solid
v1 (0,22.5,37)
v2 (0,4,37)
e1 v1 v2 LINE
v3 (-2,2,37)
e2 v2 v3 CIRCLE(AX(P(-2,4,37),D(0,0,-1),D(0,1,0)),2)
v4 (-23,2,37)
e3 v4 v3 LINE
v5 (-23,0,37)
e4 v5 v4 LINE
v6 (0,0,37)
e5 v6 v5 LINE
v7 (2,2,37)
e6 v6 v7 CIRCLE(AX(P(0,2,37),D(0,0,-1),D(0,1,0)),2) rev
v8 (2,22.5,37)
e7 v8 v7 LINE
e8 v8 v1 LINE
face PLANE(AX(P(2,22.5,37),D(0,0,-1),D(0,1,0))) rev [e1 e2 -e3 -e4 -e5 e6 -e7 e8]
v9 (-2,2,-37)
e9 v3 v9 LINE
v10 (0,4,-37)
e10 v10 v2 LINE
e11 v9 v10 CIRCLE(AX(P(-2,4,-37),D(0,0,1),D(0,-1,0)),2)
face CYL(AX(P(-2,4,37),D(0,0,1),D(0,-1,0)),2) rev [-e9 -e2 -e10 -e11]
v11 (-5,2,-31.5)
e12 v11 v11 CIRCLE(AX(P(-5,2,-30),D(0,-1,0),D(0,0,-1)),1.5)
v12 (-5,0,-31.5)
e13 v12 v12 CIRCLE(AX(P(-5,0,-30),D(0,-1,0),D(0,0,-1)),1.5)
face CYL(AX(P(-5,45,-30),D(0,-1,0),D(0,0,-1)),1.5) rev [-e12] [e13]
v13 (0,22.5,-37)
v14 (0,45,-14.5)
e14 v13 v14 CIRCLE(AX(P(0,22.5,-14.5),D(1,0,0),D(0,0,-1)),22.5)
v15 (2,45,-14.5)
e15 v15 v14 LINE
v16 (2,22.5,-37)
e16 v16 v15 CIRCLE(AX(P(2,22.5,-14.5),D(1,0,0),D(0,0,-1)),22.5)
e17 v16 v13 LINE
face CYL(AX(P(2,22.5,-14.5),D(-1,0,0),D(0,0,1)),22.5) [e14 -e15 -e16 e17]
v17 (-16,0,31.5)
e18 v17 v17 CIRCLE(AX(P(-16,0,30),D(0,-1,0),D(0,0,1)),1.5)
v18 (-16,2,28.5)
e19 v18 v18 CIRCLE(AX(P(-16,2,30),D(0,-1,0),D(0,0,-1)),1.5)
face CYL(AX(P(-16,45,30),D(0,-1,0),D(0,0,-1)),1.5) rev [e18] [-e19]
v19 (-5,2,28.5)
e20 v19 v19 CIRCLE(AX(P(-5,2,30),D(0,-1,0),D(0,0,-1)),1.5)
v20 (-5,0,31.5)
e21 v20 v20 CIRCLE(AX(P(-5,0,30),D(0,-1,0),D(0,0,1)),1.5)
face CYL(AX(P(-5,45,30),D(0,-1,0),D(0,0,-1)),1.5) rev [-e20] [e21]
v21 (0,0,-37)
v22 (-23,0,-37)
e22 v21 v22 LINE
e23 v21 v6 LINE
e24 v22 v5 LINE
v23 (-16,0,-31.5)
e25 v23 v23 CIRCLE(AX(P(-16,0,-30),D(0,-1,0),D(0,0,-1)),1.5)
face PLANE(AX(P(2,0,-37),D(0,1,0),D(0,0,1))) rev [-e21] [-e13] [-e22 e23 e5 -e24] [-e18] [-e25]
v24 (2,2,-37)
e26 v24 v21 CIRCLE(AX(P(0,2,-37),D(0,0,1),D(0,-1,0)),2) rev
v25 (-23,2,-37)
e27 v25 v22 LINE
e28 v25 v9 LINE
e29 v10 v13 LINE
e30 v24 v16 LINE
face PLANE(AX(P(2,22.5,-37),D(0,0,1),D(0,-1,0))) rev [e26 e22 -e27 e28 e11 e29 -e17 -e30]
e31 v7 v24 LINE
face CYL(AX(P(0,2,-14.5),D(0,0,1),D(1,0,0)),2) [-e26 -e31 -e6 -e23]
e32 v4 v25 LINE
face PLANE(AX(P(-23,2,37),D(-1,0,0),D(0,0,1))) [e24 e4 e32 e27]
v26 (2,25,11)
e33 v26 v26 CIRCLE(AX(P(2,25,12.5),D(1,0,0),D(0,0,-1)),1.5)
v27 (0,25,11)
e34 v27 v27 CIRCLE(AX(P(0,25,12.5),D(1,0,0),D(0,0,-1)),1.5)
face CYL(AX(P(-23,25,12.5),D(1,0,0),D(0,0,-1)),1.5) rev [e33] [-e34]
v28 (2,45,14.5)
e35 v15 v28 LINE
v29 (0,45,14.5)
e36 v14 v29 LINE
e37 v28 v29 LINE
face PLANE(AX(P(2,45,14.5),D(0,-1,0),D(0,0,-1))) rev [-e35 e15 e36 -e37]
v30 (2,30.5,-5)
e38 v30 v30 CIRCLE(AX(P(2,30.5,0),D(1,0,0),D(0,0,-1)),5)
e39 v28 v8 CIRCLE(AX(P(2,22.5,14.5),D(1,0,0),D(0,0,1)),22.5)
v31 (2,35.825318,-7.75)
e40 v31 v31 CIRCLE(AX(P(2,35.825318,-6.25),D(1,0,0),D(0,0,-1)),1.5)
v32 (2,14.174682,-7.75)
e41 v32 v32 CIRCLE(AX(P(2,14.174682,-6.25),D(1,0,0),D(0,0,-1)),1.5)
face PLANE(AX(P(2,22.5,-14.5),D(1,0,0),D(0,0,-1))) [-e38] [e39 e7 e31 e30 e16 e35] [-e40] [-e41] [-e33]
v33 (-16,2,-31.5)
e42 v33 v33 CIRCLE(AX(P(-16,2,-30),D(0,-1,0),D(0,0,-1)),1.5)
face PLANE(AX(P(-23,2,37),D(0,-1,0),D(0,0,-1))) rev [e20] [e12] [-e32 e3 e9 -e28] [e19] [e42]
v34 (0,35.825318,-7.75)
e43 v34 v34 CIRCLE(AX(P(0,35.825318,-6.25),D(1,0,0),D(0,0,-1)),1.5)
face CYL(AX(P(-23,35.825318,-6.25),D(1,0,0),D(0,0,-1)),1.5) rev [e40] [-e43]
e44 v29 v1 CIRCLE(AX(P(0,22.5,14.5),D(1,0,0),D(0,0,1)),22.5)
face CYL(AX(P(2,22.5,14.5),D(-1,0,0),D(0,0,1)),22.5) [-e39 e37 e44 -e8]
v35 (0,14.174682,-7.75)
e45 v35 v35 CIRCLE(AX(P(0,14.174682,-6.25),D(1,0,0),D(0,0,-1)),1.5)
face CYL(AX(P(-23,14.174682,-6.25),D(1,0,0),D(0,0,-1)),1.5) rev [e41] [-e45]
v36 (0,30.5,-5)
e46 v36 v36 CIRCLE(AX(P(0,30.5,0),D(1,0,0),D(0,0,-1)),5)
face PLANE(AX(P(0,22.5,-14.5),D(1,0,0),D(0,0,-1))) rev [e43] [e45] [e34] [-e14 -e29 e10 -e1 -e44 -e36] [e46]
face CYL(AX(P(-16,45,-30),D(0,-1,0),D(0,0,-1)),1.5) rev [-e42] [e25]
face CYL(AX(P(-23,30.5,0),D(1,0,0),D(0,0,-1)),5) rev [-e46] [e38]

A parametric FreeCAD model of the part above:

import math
import FreeCAD as App
import Part
import Sketcher

V = App.Vector
Q = App.Units.Quantity


def edges_at(feature, points):
    """Names of the edges that pass closest to the given points."""
    edges = feature.Shape.Edges
    near = lambda p: min(range(len(edges)), key=lambda i: edges[i].distToShape(Part.Vertex(*p))[0])
    return sorted({f"Edge{near(p) + 1}" for p in points})


def add_polygon(sketch, points):
    """Adds a closed chain of lines whose ends are joined by coincident constraints."""
    first, n = sketch.GeometryCount, len(points)
    for a, b in zip(points, points[1:] + points[:1]):
        sketch.addGeometry(Part.LineSegment(App.Vector(*a, 0), App.Vector(*b, 0)), False)
    for i in range(n):
        sketch.addConstraint(Sketcher.Constraint("Coincident", first + i, 2, first + (i + 1) % n, 1))

doc = App.newDocument("Part")
body = doc.addObject("PartDesign::Body", "Body")

sketch1 = body.newObject("Sketcher::SketchObject", "Sketch")
sketch1.AttachmentSupport = (doc.getObject("YZ_Plane"), [""])
sketch1.MapMode = "FlatFace"
sketch1.addGeometry(Part.LineSegment(V(45, -14, 0), V(45, 14, 0)), False)
sketch1.addGeometry(Part.ArcOfCircle(Part.Circle(V(23, 15, 0), V(0, 0, 1), 22), math.radians(0), math.radians(90)), False)
sketch1.addGeometry(Part.LineSegment(V(22, 37, 0), V(0, 37, 0)), False)
sketch1.addGeometry(Part.LineSegment(V(0, 37, 0), V(0, -37, 0)), False)
sketch1.addGeometry(Part.LineSegment(V(0, -37, 0), V(22, -37, 0)), False)
sketch1.addGeometry(Part.ArcOfCircle(Part.Circle(V(23, -15, 0), V(0, 0, 1), 22), math.radians(-90), math.radians(0)), False)
sketch1.addConstraint(Sketcher.Constraint("Tangent", 0, 2, 1, 1))
sketch1.addConstraint(Sketcher.Constraint("Tangent", 1, 2, 2, 1))
sketch1.addConstraint(Sketcher.Constraint("Coincident", 2, 2, 3, 1))
sketch1.addConstraint(Sketcher.Constraint("Coincident", 3, 2, 4, 1))
sketch1.addConstraint(Sketcher.Constraint("Tangent", 4, 2, 5, 1))
sketch1.addConstraint(Sketcher.Constraint("Tangent", 5, 2, 0, 1))
sketch1.addConstraint(Sketcher.Constraint("Vertical", 0))
sketch1.addConstraint(Sketcher.Constraint("Horizontal", 2))
sketch1.addConstraint(Sketcher.Constraint("Vertical", 3))
sketch1.addConstraint(Sketcher.Constraint("Horizontal", 4))
sketch1.addConstraint(Sketcher.Constraint("Equal", 1, 5))
sketch1.addConstraint(Sketcher.Constraint("Symmetric", 2, 2, 3, 2, -1, 1))
sketch1.addConstraint(Sketcher.Constraint("Radius", 1, Q("22.5 mm")))
sketch1.addConstraint(Sketcher.Constraint("DistanceY", 0, 1, 0, 2, Q("29 mm")))
sketch1.addConstraint(Sketcher.Constraint("DistanceX", 2, 2, 2, 1, Q("22.5 mm")))
pad1 = body.newObject("PartDesign::Pad", "Pad")
pad1.Profile = sketch1
pad1.Length = 2

sketch2 = body.newObject("Sketcher::SketchObject", "Sketch001")
sketch2.AttachmentSupport = (doc.getObject("YZ_Plane"), [""])
sketch2.MapMode = "FlatFace"
add_polygon(sketch2, [(2, -37), (0, -37), (0, 37), (2, 37)])
sketch2.addConstraint(Sketcher.Constraint("Horizontal", 0))
sketch2.addConstraint(Sketcher.Constraint("Vertical", 1))
sketch2.addConstraint(Sketcher.Constraint("Horizontal", 2))
sketch2.addConstraint(Sketcher.Constraint("Vertical", 3))
sketch2.addConstraint(Sketcher.Constraint("Symmetric", 0, 2, 1, 2, -1, 1))
sketch2.addConstraint(Sketcher.Constraint("DistanceX", 0, 2, 0, 1, Q("2 mm")))
sketch2.addConstraint(Sketcher.Constraint("DistanceY", 1, 1, 1, 2, Q("74 mm")))
pad2 = body.newObject("PartDesign::Pad", "Pad001")
pad2.Profile = sketch2
pad2.Length = 23
pad2.Reversed = True
doc.recompute()

fillet = body.newObject("PartDesign::Fillet", "Fillet")
fillet.Base = (pad2, edges_at(pad2, [(2, 0, 0), (0, 2, 0)]))
fillet.Radius = 2

sketch3 = body.newObject("Sketcher::SketchObject", "Sketch002")
sketch3.AttachmentSupport = (doc.getObject("YZ_Plane"), [""])
sketch3.MapMode = "FlatFace"
sketch3.AttachmentOffset = App.Placement(V(0, 0, 2), App.Rotation())
sketch3.addGeometry(Part.Circle(V(30.5, 0, 0), V(0, 0, 1), 5), False)
sketch3.addGeometry(Part.Circle(V(35.8, -6.2, 0), V(0, 0, 1), 1.5), False)
sketch3.addGeometry(Part.Circle(V(14.2, -6.2, 0), V(0, 0, 1), 1.5), False)
sketch3.addGeometry(Part.Circle(V(25, 12.5, 0), V(0, 0, 1), 1.5), False)
sketch3.addConstraint(Sketcher.Constraint("Equal", 1, 2))
sketch3.addConstraint(Sketcher.Constraint("Equal", 2, 3))
sketch3.addConstraint(Sketcher.Constraint("PointOnObject", 0, 3, -1))
sketch3.addConstraint(Sketcher.Constraint("Horizontal", 1, 3, 2, 3))
sketch3.addConstraint(Sketcher.Constraint("Diameter", 0, Q("10 mm")))
sketch3.addConstraint(Sketcher.Constraint("Diameter", 1, Q("3 mm")))
sketch3.addConstraint(Sketcher.Constraint("DistanceX", -1, 1, 3, 3, Q("25 mm")))
sketch3.addConstraint(Sketcher.Constraint("DistanceX", -1, 1, 0, 3, Q("30.5 mm")))
sketch3.addConstraint(Sketcher.Constraint("DistanceY", -1, 1, 3, 3, Q("12.5 mm")))
sketch3.addConstraint(Sketcher.Constraint("DistanceY", 1, 3, -1, 1, Q("6.25 mm")))
sketch3.addConstraint(Sketcher.Constraint("DistanceX", -1, 1, 1, 3, Q("35.825318 mm")))
sketch3.addConstraint(Sketcher.Constraint("DistanceX", -1, 1, 2, 3, Q("14.174682 mm")))
pocket1 = body.newObject("PartDesign::Pocket", "Pocket")
pocket1.Profile = sketch3
pocket1.Type = "ThroughAll"

sketch4 = body.newObject("Sketcher::SketchObject", "Sketch003")
sketch4.AttachmentSupport = (doc.getObject("XZ_Plane"), [""])
sketch4.MapMode = "FlatFace"
sketch4.addGeometry(Part.Circle(V(-16, -30, 0), V(0, 0, 1), 1.5), False)
sketch4.addGeometry(Part.Circle(V(-5, -30, 0), V(0, 0, 1), 1.5), False)
sketch4.addGeometry(Part.Circle(V(-5, 30, 0), V(0, 0, 1), 1.5), False)
sketch4.addGeometry(Part.Circle(V(-16, 30, 0), V(0, 0, 1), 1.5), False)
sketch4.addConstraint(Sketcher.Constraint("Equal", 0, 1))
sketch4.addConstraint(Sketcher.Constraint("Equal", 1, 2))
sketch4.addConstraint(Sketcher.Constraint("Equal", 2, 3))
sketch4.addConstraint(Sketcher.Constraint("Symmetric", 1, 3, 2, 3, -1))
sketch4.addConstraint(Sketcher.Constraint("Symmetric", 0, 3, 3, 3, -1))
sketch4.addConstraint(Sketcher.Constraint("Horizontal", 0, 3, 1, 3))
sketch4.addConstraint(Sketcher.Constraint("Diameter", 0, Q("3 mm")))
sketch4.addConstraint(Sketcher.Constraint("DistanceX", 0, 3, -1, 1, Q("16 mm")))
sketch4.addConstraint(Sketcher.Constraint("DistanceY", 0, 3, -1, 1, Q("30 mm")))
sketch4.addConstraint(Sketcher.Constraint("DistanceX", 1, 3, -1, 1, Q("5 mm")))
pocket2 = body.newObject("PartDesign::Pocket", "Pocket001")
pocket2.Profile = sketch4
pocket2.Type = "ThroughAll"

doc.recompute()
